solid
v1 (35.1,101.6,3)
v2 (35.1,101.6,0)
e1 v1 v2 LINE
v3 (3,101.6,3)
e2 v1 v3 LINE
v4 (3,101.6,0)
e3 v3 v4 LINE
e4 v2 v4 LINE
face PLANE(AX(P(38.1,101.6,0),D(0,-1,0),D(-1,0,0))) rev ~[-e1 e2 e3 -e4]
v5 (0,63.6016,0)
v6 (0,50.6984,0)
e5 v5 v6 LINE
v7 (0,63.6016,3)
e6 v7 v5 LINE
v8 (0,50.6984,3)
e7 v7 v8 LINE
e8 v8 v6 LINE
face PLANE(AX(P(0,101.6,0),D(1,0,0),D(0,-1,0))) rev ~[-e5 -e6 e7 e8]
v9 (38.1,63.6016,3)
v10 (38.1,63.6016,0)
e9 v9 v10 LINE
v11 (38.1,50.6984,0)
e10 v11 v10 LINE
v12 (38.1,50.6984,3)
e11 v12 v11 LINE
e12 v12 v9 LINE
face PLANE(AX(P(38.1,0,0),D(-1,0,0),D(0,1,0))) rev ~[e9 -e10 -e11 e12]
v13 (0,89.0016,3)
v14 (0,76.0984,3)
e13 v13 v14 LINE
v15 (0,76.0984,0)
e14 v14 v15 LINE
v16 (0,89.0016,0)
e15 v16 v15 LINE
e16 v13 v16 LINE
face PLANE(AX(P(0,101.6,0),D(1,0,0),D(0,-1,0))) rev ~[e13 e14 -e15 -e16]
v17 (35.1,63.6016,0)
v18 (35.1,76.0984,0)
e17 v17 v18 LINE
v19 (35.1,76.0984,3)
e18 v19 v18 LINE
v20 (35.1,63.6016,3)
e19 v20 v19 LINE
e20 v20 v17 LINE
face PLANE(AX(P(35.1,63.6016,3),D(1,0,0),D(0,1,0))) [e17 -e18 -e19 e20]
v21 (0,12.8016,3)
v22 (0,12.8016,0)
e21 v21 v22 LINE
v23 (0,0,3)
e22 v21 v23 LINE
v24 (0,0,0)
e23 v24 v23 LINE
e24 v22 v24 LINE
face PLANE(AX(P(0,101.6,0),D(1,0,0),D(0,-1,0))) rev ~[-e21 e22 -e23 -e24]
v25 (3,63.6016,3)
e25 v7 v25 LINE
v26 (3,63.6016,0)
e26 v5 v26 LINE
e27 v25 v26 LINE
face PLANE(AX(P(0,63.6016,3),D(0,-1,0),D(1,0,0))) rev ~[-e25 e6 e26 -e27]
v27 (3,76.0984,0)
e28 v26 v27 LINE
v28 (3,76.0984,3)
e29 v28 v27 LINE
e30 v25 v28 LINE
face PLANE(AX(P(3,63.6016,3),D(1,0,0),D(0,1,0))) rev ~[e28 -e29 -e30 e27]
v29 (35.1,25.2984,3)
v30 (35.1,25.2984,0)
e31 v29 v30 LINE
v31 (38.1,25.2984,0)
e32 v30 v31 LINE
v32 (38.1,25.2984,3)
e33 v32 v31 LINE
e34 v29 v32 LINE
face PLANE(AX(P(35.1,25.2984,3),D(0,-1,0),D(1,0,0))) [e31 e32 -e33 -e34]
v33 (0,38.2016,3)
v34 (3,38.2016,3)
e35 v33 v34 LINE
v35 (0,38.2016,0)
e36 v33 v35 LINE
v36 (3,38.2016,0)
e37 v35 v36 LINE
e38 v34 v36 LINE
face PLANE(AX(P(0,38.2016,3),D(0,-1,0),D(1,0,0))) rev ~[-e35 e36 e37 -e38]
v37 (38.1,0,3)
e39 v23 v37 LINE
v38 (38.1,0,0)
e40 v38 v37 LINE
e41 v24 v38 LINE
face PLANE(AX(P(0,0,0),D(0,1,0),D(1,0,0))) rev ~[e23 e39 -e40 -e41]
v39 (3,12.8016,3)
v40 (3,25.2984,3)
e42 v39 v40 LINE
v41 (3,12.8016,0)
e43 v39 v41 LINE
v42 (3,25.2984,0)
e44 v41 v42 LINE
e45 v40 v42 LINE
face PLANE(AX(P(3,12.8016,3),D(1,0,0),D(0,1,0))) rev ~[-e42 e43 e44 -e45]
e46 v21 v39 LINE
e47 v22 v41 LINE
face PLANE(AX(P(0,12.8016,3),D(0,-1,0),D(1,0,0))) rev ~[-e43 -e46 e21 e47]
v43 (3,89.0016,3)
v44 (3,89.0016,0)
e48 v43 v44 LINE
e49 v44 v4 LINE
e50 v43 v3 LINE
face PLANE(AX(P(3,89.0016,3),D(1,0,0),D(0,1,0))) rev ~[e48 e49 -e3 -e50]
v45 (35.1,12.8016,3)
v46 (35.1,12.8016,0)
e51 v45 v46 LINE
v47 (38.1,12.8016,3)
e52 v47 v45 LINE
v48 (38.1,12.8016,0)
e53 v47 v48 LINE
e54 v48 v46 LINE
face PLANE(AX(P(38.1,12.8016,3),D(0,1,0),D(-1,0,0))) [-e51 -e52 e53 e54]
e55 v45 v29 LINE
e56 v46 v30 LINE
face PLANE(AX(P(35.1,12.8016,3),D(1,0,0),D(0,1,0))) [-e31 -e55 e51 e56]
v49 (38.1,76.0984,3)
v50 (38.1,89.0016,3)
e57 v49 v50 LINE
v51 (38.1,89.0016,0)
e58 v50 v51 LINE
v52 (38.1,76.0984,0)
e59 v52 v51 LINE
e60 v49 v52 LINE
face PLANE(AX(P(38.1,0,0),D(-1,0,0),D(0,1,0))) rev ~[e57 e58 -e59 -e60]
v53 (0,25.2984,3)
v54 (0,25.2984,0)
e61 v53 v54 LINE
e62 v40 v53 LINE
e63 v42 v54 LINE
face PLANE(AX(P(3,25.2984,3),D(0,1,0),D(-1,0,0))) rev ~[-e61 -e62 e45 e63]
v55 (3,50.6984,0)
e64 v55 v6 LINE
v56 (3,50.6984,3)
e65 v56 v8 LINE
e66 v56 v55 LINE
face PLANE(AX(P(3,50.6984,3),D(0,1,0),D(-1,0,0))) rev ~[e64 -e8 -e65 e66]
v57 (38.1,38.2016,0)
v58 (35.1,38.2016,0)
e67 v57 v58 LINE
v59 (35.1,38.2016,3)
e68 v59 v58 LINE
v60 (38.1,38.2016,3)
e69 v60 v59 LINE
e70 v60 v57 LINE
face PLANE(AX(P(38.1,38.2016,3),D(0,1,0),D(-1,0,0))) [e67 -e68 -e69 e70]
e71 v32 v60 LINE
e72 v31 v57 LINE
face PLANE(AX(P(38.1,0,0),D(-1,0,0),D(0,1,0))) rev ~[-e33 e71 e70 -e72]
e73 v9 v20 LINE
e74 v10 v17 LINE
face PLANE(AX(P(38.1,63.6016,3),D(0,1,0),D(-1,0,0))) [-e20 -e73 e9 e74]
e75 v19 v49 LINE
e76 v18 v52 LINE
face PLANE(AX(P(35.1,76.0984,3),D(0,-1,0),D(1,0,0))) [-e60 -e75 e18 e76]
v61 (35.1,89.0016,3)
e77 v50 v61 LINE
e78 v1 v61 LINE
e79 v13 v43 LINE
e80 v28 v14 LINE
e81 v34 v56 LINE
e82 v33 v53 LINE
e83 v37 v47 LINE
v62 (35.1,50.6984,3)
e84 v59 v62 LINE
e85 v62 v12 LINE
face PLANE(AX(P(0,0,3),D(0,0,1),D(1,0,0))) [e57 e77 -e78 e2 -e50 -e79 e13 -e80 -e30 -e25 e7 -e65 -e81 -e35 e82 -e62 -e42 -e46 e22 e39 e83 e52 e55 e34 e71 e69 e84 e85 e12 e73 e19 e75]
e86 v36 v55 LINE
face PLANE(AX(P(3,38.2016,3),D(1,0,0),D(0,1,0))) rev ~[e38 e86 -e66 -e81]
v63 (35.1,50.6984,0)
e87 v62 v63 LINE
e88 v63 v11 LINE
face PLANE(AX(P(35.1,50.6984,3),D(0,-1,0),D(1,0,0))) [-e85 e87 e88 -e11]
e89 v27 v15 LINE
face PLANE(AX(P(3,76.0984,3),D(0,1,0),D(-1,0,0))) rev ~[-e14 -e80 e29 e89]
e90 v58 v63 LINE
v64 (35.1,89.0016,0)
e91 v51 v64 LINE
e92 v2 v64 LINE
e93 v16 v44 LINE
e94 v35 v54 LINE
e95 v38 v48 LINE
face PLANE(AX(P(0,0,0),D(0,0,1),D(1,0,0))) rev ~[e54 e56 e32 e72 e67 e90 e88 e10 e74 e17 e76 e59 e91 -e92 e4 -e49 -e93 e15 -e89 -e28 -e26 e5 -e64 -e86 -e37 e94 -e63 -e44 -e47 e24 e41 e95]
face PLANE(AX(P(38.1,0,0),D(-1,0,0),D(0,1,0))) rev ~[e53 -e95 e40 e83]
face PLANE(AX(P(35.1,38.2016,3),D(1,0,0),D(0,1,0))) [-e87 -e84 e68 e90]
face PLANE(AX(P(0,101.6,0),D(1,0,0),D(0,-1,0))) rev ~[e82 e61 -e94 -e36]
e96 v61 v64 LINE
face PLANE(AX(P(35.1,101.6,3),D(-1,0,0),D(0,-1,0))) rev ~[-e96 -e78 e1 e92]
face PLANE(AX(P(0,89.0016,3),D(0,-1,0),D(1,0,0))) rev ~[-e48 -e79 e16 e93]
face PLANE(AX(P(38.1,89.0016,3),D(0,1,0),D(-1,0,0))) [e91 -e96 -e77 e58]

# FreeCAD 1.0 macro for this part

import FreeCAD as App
import Part
import Sketcher
from FreeCAD import Vector
Q = App.Units.Quantity


def add_polygon(sketch, points):
    """Adds a closed chain of lines whose ends are joined by coincident constraints."""
    first, n = sketch.GeometryCount, len(points)
    for a, b in zip(points, points[1:] + points[:1]):
        sketch.addGeometry(Part.LineSegment(App.Vector(*a, 0), App.Vector(*b, 0)), False)
    for i in range(n):
        sketch.addConstraint(Sketcher.Constraint("Coincident", first + i, 2, first + (i + 1) % n, 1))

doc = App.newDocument("Part")
body = doc.addObject("PartDesign::Body", "Body")

# Sketch on XY plane
sketch1 = body.newObject("Sketcher::SketchObject", "Sketch")
sketch1.AttachmentSupport = (doc.getObject("XY_Plane"), [""])
sketch1.MapMode = "FlatFace"
add_polygon(sketch1, [(0, 101.6), (0, 0), (38.1, 0), (38.1, 101.6)])  # lines 0-3
sketch1.addConstraint(Sketcher.Constraint("Vertical", 0))
sketch1.addConstraint(Sketcher.Constraint("Horizontal", 1))
sketch1.addConstraint(Sketcher.Constraint("Vertical", 2))
sketch1.addConstraint(Sketcher.Constraint("Horizontal", 3))
sketch1.addConstraint(Sketcher.Constraint("Coincident", 0, 2, -1, 1))
sketch1.addConstraint(Sketcher.Constraint("DistanceY", 0, 2, 0, 1, Q("4 in")))
sketch1.addConstraint(Sketcher.Constraint("DistanceX", 1, 1, 1, 2, Q("1.5 in")))
pad1 = body.newObject("PartDesign::Pad", "Pad")
pad1.Profile = sketch1
pad1.Length = Q("0.1181102 in")

# Sketch on XY plane
sketch2 = body.newObject("Sketcher::SketchObject", "Sketch001")
sketch2.AttachmentSupport = (doc.getObject("XY_Plane"), [""])
sketch2.MapMode = "FlatFace"
sketch2.AttachmentOffset = App.Placement(Vector(0, 0, 0.1181102 * 25.4), App.Rotation())
add_polygon(sketch2, [(0, 25.2984), (0, 12.8016), (3, 12.8016), (3, 25.2984)])  # lines 0-3
add_polygon(sketch2, [(35.1, 12.8016), (38.1, 12.8016), (38.1, 25.2984), (35.1, 25.2984)])  # lines 4-7
add_polygon(sketch2, [(0, 50.6984), (0, 38.2016), (3, 38.2016), (3, 50.6984)])  # lines 8-11
add_polygon(sketch2, [(35.1, 38.2016), (38.1, 38.2016), (38.1, 50.6984), (35.1, 50.6984)])  # lines 12-15
add_polygon(sketch2, [(0, 76.0984), (0, 63.6016), (3, 63.6016), (3, 76.0984)])  # lines 16-19
add_polygon(sketch2, [(35.1, 63.6016), (38.1, 63.6016), (38.1, 76.0984), (35.1, 76.0984)])  # lines 20-23
add_polygon(sketch2, [(0, 101.4984), (0, 89.0016), (3, 89.0016), (3, 101.4984)])  # lines 24-27
add_polygon(sketch2, [(35.1, 89.0016), (38.1, 89.0016), (38.1, 101.4984), (35.1, 101.4984)])  # lines 28-31
sketch2.addConstraint(Sketcher.Constraint("Vertical", 0))
sketch2.addConstraint(Sketcher.Constraint("Horizontal", 1))
sketch2.addConstraint(Sketcher.Constraint("Vertical", 2))
sketch2.addConstraint(Sketcher.Constraint("Horizontal", 3))
sketch2.addConstraint(Sketcher.Constraint("Horizontal", 4))
sketch2.addConstraint(Sketcher.Constraint("Vertical", 5))
sketch2.addConstraint(Sketcher.Constraint("Horizontal", 6))
sketch2.addConstraint(Sketcher.Constraint("Vertical", 7))
sketch2.addConstraint(Sketcher.Constraint("Vertical", 8))
sketch2.addConstraint(Sketcher.Constraint("Horizontal", 9))
sketch2.addConstraint(Sketcher.Constraint("Vertical", 10))
sketch2.addConstraint(Sketcher.Constraint("Horizontal", 11))
sketch2.addConstraint(Sketcher.Constraint("Horizontal", 12))
sketch2.addConstraint(Sketcher.Constraint("Vertical", 13))
sketch2.addConstraint(Sketcher.Constraint("Horizontal", 14))
sketch2.addConstraint(Sketcher.Constraint("Vertical", 15))
sketch2.addConstraint(Sketcher.Constraint("Vertical", 16))
sketch2.addConstraint(Sketcher.Constraint("Horizontal", 17))
sketch2.addConstraint(Sketcher.Constraint("Vertical", 18))
sketch2.addConstraint(Sketcher.Constraint("Horizontal", 19))
sketch2.addConstraint(Sketcher.Constraint("Horizontal", 20))
sketch2.addConstraint(Sketcher.Constraint("Vertical", 21))
sketch2.addConstraint(Sketcher.Constraint("Horizontal", 22))
sketch2.addConstraint(Sketcher.Constraint("Vertical", 23))
sketch2.addConstraint(Sketcher.Constraint("Vertical", 24))
sketch2.addConstraint(Sketcher.Constraint("Horizontal", 25))
sketch2.addConstraint(Sketcher.Constraint("Vertical", 26))
sketch2.addConstraint(Sketcher.Constraint("Horizontal", 27))
sketch2.addConstraint(Sketcher.Constraint("Horizontal", 28))
sketch2.addConstraint(Sketcher.Constraint("Vertical", 29))
sketch2.addConstraint(Sketcher.Constraint("Horizontal", 30))
sketch2.addConstraint(Sketcher.Constraint("Vertical", 31))
sketch2.addConstraint(Sketcher.Constraint("PointOnObject", 0, 2, -2))
sketch2.addConstraint(Sketcher.Constraint("PointOnObject", 8, 2, -2))
sketch2.addConstraint(Sketcher.Constraint("PointOnObject", 16, 2, -2))
sketch2.addConstraint(Sketcher.Constraint("PointOnObject", 24, 2, -2))
sketch2.addConstraint(Sketcher.Constraint("Horizontal", 1, 2, 4, 2))
sketch2.addConstraint(Sketcher.Constraint("Horizontal", 3, 2, 5, 2))
sketch2.addConstraint(Sketcher.Constraint("Horizontal", 9, 2, 12, 2))
sketch2.addConstraint(Sketcher.Constraint("Horizontal", 11, 2, 13, 2))
sketch2.addConstraint(Sketcher.Constraint("Horizontal", 17, 2, 20, 2))
sketch2.addConstraint(Sketcher.Constraint("Horizontal", 19, 2, 21, 2))
sketch2.addConstraint(Sketcher.Constraint("Horizontal", 25, 2, 28, 2))
sketch2.addConstraint(Sketcher.Constraint("Horizontal", 27, 2, 29, 2))
sketch2.addConstraint(Sketcher.Constraint("Vertical", 2, 2, 9, 2))
sketch2.addConstraint(Sketcher.Constraint("Vertical", 5, 2, 12, 2))
sketch2.addConstraint(Sketcher.Constraint("Vertical", 7, 2, 14, 2))
sketch2.addConstraint(Sketcher.Constraint("Vertical", 10, 2, 17, 2))
sketch2.addConstraint(Sketcher.Constraint("Vertical", 13, 2, 20, 2))
sketch2.addConstraint(Sketcher.Constraint("Vertical", 15, 2, 22, 2))
sketch2.addConstraint(Sketcher.Constraint("Vertical", 18, 2, 25, 2))
sketch2.addConstraint(Sketcher.Constraint("Vertical", 21, 2, 28, 2))
sketch2.addConstraint(Sketcher.Constraint("Vertical", 23, 2, 30, 2))
sketch2.addConstraint(Sketcher.Constraint("Equal", 3, 4))
sketch2.addConstraint(Sketcher.Constraint("Equal", 7, 8))
sketch2.addConstraint(Sketcher.Constraint("Equal", 15, 16))
sketch2.addConstraint(Sketcher.Constraint("Equal", 23, 24))
sketch2.addConstraint(Sketcher.Constraint("DistanceY", 0, 2, 8, 2, Q("1 in")))
sketch2.addConstraint(Sketcher.Constraint("DistanceY", 8, 2, 16, 2, Q("1 in")))
sketch2.addConstraint(Sketcher.Constraint("DistanceY", 16, 2, 24, 2, Q("1 in")))
sketch2.addConstraint(Sketcher.Constraint("DistanceY", 0, 2, 0, 1, Q("0.492 in")))
sketch2.addConstraint(Sketcher.Constraint("DistanceX", 1, 1, 1, 2, Q("0.1181 in")))
sketch2.addConstraint(Sketcher.Constraint("DistanceY", -1, 1, 0, 2, Q("0.504 in")))
sketch2.addConstraint(Sketcher.Constraint("DistanceX", -1, 1, 4, 2, Q("1.5 in")))
pocket1 = body.newObject("PartDesign::Pocket", "Pocket")
pocket1.Profile = sketch2
pocket1.Length = Q("0.1181102 in")

# Sketch on XY plane
sketch3 = body.newObject("Sketcher::SketchObject", "Sketch002")
sketch3.AttachmentSupport = (doc.getObject("XY_Plane"), [""])
sketch3.MapMode = "FlatFace"
sketch3.AttachmentOffset = App.Placement(Vector(0, 0, 0.1181102 * 25.4), App.Rotation())
add_polygon(sketch3, [(35.1, 101.6), (35.1, 101.4984), (38.1, 101.4984), (38.1, 101.6)])  # lines 0-3
add_polygon(sketch3, [(3, 101.4984), (3, 101.6), (0, 101.6), (0, 101.4984)])  # lines 4-7
sketch3.addConstraint(Sketcher.Constraint("Vertical", 0))
sketch3.addConstraint(Sketcher.Constraint("Horizontal", 1))
sketch3.addConstraint(Sketcher.Constraint("Vertical", 2))
sketch3.addConstraint(Sketcher.Constraint("Horizontal", 3))
sketch3.addConstraint(Sketcher.Constraint("Vertical", 4))
sketch3.addConstraint(Sketcher.Constraint("Horizontal", 5))
sketch3.addConstraint(Sketcher.Constraint("Vertical", 6))
sketch3.addConstraint(Sketcher.Constraint("Horizontal", 7))
sketch3.addConstraint(Sketcher.Constraint("PointOnObject", 5, 2, -2))
sketch3.addConstraint(Sketcher.Constraint("Horizontal", 3, 2, 4, 2))
sketch3.addConstraint(Sketcher.Constraint("Horizontal", 1, 2, 6, 2))
sketch3.addConstraint(Sketcher.Constraint("Equal", 3, 5))
sketch3.addConstraint(Sketcher.Constraint("DistanceY", -1, 1, 2, 2, Q("4 in")))
sketch3.addConstraint(Sketcher.Constraint("DistanceX", -1, 1, 1, 2, Q("1.5 in")))
sketch3.addConstraint(Sketcher.Constraint("DistanceY", 0, 2, 0, 1, Q("0.004 in")))
sketch3.addConstraint(Sketcher.Constraint("DistanceX", 1, 1, 1, 2, Q("0.1181 in")))
pocket2 = body.newObject("PartDesign::Pocket", "Pocket001")
pocket2.Profile = sketch3
pocket2.Length = Q("0.1181102 in")

doc.recompute()
